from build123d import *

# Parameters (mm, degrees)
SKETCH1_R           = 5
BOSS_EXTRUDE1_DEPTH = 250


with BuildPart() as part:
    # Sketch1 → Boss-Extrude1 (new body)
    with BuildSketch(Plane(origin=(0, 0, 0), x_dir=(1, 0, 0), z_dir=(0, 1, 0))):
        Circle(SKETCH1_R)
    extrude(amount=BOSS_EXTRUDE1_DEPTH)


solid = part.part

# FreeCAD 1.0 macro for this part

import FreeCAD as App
import Part
import Sketcher

doc = App.newDocument("Part")
body = doc.addObject("PartDesign::Body", "Body")

# Sketch on XZ plane
sketch1 = body.newObject("Sketcher::SketchObject", "Sketch")
sketch1.AttachmentSupport = (doc.getObject("XZ_Plane"), [""])
sketch1.MapMode = "FlatFace"
sketch1.addGeometry(Part.Circle(App.Vector(0, 0, 0), App.Vector(0, 0, 1), 5), False)
sketch1.addConstraint([
    Sketcher.Constraint("Coincident", 0, 3, -1, 1),
    Sketcher.Constraint("Diameter", 0, 10.0),
])
pad1 = body.newObject("PartDesign::Pad", "Pad")
pad1.Profile = sketch1
pad1.Length = 250
pad1.Reversed = True

doc.recompute()
